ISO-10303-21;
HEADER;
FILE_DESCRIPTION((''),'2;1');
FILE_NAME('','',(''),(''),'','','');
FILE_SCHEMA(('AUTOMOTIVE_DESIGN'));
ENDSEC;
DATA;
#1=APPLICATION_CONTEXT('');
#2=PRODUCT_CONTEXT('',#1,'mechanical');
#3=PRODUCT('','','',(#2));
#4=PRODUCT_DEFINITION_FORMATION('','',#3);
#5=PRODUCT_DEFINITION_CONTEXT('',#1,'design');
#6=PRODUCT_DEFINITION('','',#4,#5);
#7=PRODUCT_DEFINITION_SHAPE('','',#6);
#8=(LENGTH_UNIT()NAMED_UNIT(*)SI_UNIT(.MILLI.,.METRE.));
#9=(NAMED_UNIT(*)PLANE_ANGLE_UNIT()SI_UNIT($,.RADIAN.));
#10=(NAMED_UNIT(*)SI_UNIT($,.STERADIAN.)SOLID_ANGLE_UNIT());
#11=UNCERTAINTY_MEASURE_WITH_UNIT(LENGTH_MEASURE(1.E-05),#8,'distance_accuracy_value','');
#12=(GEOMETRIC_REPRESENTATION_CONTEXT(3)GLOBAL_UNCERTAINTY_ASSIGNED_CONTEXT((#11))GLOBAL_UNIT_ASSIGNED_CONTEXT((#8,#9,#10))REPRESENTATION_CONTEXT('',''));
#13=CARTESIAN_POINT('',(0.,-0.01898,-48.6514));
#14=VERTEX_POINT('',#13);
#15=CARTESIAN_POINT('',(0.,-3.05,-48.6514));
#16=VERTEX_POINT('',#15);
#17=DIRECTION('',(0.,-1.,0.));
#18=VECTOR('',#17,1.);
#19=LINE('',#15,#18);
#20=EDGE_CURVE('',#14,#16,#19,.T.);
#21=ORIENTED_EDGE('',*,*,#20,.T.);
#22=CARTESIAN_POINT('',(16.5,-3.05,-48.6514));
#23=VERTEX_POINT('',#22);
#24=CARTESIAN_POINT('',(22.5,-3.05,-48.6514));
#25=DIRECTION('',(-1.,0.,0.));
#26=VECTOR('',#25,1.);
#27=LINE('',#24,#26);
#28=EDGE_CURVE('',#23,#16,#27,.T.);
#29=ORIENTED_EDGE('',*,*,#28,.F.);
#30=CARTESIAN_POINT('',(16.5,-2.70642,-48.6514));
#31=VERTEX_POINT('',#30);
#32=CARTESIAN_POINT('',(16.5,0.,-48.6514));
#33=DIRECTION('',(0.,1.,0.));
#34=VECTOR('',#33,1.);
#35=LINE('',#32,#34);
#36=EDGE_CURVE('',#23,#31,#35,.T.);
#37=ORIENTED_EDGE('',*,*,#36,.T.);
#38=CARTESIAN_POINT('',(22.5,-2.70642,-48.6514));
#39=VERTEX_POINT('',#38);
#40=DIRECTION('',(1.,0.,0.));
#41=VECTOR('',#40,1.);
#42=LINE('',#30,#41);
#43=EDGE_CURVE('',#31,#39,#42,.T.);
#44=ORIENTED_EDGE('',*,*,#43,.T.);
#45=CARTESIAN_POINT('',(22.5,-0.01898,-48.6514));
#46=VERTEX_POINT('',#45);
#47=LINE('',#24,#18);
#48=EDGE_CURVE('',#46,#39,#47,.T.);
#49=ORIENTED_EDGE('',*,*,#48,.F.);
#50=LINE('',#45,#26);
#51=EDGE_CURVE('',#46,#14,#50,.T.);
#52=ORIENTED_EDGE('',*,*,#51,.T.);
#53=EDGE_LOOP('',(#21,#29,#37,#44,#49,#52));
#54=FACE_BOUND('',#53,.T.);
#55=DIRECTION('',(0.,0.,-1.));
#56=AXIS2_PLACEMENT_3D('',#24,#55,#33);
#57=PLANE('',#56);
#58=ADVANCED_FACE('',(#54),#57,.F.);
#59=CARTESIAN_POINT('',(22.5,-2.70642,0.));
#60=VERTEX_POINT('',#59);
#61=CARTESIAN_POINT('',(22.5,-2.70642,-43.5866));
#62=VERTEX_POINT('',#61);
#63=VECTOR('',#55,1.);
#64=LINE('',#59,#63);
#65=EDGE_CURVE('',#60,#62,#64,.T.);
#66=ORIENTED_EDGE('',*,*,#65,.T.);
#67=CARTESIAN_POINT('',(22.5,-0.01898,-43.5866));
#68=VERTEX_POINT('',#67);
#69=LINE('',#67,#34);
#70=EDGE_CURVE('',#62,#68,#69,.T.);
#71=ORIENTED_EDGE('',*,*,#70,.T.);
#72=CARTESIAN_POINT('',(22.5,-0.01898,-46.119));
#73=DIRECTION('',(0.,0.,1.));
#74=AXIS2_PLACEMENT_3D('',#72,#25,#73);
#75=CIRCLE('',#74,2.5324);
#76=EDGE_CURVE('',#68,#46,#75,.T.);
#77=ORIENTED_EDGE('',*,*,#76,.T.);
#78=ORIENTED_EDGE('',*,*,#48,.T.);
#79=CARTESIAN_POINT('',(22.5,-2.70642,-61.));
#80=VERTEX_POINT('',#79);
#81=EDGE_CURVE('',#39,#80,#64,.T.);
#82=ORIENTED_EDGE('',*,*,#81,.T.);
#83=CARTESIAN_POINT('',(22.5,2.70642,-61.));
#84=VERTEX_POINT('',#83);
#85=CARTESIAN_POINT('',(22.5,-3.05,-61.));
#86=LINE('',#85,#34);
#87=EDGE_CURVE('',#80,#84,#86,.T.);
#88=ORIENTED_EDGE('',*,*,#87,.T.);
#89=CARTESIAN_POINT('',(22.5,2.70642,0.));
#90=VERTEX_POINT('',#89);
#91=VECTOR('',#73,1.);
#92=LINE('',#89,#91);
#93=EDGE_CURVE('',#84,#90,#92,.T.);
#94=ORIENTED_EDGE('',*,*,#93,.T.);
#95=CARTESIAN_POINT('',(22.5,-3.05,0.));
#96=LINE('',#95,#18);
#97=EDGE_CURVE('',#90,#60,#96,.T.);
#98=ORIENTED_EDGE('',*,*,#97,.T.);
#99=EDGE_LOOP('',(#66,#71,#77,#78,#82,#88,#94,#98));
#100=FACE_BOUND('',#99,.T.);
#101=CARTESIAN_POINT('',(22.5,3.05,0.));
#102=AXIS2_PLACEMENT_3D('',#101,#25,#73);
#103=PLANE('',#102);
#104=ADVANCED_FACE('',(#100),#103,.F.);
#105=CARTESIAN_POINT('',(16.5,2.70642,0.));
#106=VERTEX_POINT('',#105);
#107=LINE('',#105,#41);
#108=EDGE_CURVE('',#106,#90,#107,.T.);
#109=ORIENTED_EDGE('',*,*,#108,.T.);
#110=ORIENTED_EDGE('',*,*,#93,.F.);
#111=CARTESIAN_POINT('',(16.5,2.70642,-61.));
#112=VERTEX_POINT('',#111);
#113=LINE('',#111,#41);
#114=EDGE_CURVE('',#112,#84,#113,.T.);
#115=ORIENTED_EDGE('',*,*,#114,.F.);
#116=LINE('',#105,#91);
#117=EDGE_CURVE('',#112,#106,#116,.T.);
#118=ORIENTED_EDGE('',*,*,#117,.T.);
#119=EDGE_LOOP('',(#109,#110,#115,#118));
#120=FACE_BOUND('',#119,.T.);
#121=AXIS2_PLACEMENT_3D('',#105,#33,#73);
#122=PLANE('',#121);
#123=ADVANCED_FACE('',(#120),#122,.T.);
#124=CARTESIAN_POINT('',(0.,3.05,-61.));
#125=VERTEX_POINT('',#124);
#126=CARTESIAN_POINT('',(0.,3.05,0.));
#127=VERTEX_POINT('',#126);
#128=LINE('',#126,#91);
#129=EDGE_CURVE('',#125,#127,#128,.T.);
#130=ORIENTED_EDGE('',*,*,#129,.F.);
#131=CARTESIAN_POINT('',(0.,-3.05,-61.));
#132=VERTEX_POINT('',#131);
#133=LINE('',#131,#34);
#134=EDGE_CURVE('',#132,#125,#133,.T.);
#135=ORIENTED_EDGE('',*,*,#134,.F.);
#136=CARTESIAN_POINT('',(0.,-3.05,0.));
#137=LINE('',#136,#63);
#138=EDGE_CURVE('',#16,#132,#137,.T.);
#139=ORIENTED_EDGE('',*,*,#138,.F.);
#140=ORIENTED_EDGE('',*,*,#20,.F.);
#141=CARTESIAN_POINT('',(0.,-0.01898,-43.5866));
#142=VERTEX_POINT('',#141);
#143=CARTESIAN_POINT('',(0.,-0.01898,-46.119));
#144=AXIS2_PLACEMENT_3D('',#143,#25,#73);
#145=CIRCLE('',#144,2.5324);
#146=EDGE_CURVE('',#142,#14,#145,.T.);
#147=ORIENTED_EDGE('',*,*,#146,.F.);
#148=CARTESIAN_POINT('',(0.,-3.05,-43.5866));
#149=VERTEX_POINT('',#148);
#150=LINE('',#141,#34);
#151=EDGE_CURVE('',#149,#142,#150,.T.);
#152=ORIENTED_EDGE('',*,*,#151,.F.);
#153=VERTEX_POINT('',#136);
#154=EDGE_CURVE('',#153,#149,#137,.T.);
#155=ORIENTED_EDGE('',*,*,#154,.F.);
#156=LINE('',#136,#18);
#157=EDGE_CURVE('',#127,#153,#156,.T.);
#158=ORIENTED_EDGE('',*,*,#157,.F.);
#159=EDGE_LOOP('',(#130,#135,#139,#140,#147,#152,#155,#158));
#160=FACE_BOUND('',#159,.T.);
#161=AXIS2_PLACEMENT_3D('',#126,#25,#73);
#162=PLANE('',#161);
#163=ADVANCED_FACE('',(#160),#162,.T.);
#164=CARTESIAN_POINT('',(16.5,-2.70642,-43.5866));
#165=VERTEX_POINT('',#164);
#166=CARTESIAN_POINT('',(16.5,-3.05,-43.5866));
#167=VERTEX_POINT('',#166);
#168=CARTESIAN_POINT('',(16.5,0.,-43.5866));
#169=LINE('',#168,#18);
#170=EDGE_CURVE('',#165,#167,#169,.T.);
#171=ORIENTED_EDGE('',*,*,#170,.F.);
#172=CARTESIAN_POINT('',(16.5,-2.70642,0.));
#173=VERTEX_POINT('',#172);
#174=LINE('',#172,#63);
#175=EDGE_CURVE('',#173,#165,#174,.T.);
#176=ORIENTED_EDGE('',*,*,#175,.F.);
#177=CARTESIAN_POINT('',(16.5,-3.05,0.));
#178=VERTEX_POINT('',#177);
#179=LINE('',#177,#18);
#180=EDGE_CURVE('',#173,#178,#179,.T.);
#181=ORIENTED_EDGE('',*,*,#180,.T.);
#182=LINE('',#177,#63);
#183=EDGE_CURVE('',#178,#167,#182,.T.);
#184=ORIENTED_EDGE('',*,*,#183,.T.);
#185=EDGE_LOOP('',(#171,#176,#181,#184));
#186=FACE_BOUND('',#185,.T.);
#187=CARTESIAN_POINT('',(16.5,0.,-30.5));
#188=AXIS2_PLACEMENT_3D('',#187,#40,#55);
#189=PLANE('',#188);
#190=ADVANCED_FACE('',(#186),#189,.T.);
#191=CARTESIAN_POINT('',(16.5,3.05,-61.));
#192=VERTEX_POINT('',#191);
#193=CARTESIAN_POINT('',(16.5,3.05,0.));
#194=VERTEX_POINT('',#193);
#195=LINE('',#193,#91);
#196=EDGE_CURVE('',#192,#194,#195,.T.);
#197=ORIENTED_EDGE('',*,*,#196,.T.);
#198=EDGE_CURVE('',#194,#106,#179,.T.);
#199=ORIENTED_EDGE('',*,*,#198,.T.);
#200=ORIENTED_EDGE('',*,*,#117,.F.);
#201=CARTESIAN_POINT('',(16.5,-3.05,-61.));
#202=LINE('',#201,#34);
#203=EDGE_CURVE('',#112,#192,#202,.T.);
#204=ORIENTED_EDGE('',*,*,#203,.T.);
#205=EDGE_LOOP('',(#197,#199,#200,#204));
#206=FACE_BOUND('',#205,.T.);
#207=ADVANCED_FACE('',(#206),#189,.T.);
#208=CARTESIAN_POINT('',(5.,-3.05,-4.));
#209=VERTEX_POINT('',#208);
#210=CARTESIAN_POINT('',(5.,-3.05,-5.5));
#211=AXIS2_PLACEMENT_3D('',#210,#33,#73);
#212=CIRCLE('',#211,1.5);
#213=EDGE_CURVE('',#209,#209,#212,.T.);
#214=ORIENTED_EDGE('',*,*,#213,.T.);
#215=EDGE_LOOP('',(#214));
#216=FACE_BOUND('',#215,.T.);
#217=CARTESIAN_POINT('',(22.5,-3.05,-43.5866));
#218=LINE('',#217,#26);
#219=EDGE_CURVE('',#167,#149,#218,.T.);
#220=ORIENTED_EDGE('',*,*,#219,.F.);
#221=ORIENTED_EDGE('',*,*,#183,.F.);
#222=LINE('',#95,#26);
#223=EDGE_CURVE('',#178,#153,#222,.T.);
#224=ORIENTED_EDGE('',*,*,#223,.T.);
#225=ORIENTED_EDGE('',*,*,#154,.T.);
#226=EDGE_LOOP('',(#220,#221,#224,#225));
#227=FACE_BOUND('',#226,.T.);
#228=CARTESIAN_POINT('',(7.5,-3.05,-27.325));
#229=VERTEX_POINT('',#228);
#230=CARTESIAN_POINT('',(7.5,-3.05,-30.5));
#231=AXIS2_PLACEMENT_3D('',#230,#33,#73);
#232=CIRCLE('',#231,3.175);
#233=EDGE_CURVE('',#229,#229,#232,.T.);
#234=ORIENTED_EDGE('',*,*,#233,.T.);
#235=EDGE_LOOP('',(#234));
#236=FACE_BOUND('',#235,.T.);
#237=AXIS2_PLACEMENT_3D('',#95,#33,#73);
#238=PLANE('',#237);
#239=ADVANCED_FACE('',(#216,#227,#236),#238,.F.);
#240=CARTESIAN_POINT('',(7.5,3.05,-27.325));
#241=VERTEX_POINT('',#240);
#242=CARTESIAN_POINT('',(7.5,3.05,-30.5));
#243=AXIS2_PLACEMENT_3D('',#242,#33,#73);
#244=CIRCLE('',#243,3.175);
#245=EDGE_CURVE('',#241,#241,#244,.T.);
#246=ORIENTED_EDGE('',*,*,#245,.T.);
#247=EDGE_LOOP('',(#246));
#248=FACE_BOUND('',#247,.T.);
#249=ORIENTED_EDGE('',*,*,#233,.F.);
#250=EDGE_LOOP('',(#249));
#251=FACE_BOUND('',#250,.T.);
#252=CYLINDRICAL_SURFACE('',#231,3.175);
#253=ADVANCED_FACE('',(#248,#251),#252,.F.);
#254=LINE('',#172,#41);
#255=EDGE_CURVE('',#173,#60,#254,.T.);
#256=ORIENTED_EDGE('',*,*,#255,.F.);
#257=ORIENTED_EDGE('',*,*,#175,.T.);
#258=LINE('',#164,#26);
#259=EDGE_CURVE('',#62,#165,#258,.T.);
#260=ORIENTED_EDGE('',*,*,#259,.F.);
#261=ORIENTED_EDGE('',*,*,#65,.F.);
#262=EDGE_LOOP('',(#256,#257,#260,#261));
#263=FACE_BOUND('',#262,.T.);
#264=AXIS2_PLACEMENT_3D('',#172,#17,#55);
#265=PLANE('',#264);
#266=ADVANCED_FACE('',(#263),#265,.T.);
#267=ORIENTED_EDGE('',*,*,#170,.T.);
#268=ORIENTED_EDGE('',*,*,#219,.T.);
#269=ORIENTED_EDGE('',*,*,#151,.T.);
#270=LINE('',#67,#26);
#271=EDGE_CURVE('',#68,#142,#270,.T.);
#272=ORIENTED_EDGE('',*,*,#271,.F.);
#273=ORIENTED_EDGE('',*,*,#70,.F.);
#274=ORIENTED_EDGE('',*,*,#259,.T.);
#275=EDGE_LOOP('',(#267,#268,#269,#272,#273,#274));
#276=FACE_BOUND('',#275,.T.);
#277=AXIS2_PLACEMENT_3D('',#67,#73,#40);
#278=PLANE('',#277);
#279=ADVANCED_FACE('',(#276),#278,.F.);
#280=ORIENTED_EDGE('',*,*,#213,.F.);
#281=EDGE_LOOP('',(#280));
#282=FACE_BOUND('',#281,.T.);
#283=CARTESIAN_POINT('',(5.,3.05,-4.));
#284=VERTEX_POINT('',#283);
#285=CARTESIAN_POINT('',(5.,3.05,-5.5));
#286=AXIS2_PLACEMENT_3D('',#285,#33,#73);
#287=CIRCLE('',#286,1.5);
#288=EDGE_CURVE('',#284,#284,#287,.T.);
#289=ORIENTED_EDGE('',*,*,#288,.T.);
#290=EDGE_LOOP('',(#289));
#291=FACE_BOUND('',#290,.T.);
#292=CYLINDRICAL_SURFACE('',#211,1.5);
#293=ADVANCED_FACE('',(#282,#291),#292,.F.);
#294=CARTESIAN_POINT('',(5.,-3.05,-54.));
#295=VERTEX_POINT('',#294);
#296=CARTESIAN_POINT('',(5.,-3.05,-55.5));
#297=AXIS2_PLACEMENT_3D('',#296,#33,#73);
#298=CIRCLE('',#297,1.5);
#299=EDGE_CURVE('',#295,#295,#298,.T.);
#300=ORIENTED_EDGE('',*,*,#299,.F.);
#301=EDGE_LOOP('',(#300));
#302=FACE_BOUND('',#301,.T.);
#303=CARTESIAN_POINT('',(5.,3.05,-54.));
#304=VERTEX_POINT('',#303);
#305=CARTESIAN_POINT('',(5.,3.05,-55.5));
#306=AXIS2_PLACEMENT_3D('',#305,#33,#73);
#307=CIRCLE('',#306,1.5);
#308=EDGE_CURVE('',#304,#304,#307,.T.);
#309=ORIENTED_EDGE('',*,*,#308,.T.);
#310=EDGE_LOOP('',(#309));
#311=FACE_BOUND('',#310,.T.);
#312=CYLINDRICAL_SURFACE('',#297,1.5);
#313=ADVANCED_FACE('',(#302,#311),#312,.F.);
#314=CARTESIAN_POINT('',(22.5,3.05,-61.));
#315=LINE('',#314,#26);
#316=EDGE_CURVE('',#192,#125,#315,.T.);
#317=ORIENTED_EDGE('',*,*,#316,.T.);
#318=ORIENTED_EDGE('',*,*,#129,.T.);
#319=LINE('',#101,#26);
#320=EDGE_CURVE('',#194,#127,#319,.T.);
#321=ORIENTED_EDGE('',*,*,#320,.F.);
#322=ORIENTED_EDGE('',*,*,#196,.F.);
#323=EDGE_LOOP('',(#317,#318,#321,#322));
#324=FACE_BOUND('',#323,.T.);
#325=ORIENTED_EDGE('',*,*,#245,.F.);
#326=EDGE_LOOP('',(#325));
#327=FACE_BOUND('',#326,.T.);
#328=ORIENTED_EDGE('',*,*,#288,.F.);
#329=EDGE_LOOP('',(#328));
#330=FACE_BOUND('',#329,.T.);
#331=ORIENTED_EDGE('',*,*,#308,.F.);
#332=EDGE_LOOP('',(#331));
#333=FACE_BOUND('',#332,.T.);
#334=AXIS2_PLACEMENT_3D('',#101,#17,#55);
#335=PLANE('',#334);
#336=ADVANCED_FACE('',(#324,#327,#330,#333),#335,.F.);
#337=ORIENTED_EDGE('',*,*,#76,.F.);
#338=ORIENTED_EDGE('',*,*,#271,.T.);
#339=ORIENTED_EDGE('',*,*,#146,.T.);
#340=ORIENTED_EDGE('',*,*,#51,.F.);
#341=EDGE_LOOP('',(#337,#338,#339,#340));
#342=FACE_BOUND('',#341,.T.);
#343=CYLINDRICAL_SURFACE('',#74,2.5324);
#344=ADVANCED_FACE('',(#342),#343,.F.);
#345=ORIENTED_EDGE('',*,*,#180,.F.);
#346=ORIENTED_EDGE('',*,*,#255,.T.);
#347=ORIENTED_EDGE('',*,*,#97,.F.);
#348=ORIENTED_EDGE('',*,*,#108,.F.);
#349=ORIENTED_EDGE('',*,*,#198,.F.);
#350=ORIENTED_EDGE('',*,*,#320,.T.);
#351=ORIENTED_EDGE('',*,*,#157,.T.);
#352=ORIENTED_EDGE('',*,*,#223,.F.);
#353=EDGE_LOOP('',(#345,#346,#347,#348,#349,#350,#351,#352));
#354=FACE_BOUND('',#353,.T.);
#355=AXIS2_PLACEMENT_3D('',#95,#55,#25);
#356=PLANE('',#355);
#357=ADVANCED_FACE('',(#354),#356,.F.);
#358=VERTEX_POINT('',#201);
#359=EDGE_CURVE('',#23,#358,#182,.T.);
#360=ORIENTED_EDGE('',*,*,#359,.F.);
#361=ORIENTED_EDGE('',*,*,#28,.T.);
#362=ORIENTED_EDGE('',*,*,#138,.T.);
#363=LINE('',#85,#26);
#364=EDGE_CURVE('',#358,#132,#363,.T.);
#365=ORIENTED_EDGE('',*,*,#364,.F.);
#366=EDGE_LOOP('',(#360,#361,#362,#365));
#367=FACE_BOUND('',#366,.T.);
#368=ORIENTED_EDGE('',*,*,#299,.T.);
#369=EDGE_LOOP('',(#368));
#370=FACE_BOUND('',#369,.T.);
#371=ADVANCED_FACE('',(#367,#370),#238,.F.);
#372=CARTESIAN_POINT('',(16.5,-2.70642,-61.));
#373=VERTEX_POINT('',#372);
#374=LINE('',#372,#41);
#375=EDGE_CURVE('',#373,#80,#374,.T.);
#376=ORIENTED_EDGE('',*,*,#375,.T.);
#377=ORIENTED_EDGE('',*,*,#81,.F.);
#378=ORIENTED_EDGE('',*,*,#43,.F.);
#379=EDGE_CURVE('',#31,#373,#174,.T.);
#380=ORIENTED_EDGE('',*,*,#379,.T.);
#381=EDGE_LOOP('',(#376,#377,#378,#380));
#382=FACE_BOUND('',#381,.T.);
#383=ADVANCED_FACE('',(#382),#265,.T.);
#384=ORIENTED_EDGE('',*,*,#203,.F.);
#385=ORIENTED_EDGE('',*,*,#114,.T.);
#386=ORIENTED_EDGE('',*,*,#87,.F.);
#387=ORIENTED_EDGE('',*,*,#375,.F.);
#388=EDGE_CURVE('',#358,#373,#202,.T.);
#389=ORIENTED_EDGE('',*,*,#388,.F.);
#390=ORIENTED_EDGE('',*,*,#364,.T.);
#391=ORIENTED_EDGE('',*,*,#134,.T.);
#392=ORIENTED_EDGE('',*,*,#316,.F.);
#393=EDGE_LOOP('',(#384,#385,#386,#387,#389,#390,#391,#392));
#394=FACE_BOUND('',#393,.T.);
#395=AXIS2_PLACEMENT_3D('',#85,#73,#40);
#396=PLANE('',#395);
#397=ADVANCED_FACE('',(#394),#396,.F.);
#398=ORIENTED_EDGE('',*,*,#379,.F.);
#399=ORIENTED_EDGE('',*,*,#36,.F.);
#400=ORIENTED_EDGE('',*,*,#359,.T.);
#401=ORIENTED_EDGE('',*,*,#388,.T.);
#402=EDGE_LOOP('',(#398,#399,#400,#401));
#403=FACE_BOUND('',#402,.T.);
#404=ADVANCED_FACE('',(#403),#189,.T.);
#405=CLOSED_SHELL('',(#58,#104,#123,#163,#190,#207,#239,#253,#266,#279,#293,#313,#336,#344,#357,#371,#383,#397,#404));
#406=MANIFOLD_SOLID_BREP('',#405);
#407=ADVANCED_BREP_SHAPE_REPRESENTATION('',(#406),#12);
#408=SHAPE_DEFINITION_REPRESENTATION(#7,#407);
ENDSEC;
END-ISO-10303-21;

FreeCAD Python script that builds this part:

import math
import FreeCAD as App
import Part
import Sketcher
from FreeCAD import Vector
Q = App.Units.Quantity


def add_polygon(sketch, points):
    """Adds a closed chain of lines whose ends are joined by coincident constraints."""
    first, n = sketch.GeometryCount, len(points)
    for a, b in zip(points, points[1:] + points[:1]):
        sketch.addGeometry(Part.LineSegment(App.Vector(*a, 0), App.Vector(*b, 0)), False)
    for i in range(n):
        sketch.addConstraint(Sketcher.Constraint("Coincident", first + i, 2, first + (i + 1) % n, 1))

doc = App.newDocument("Part")
body = doc.addObject("PartDesign::Body", "Body")

sketch1 = doc.addObject("Sketcher::SketchObject", "Sketch")
body.addObject(sketch1)
sketch1.AttachmentSupport = (doc.YZ_Plane, [""])
sketch1.MapMode = "FlatFace"
add_polygon(sketch1, [(3, 0), (-3, 0), (-3, -61), (3, -61)])
sketch1.addConstraint(Sketcher.Constraint("Horizontal", 0))
sketch1.addConstraint(Sketcher.Constraint("Vertical", 1))
sketch1.addConstraint(Sketcher.Constraint("Horizontal", 2))
sketch1.addConstraint(Sketcher.Constraint("Vertical", 3))
sketch1.addConstraint(Sketcher.Constraint("Symmetric", 0, 2, 3, 2, -1, 1))
sketch1.addConstraint(Sketcher.Constraint("DistanceY", 1, 2, 1, 1, Q("61 mm")))
sketch1.addConstraint(Sketcher.Constraint("DistanceX", 0, 2, 0, 1, Q("6.1 mm")))
pad1 = doc.addObject("PartDesign::Pad", "Pad")
body.addObject(pad1)
pad1.Profile = sketch1
pad1.Length = 22.5

sketch2 = doc.addObject("Sketcher::SketchObject", "Sketch001")
body.addObject(sketch2)
sketch2.AttachmentSupport = (doc.YZ_Plane, [""])
sketch2.MapMode = "FlatFace"
sketch2.AttachmentOffset = App.Placement(Vector(0, 0, 22.5), App.Rotation())
add_polygon(sketch2, [(11, 8), (-11, 8), (-11, -69), (11, -69)])
add_polygon(sketch2, [(-3, -61), (-3, 0), (3, 0), (3, -61)])
sketch2.addConstraint(Sketcher.Constraint("Horizontal", 0))
sketch2.addConstraint(Sketcher.Constraint("Vertical", 1))
sketch2.addConstraint(Sketcher.Constraint("Horizontal", 2))
sketch2.addConstraint(Sketcher.Constraint("Vertical", 3))
sketch2.addConstraint(Sketcher.Constraint("Vertical", 4))
sketch2.addConstraint(Sketcher.Constraint("Horizontal", 5))
sketch2.addConstraint(Sketcher.Constraint("Vertical", 6))
sketch2.addConstraint(Sketcher.Constraint("Horizontal", 7))
sketch2.addConstraint(Sketcher.Constraint("Symmetric", 4, 2, 5, 2, -1, 1))
sketch2.addConstraint(Sketcher.Constraint("DistanceY", 4, 1, 4, 2, Q("61 mm")))
sketch2.addConstraint(Sketcher.Constraint("DistanceX", 0, 2, 0, 1, Q("21.16 mm")))
sketch2.addConstraint(Sketcher.Constraint("DistanceY", 1, 2, 1, 1, Q("76.06 mm")))
sketch2.addConstraint(Sketcher.Constraint("DistanceX", 0, 2, -1, 1, Q("10.58 mm")))
sketch2.addConstraint(Sketcher.Constraint("DistanceY", -1, 1, 0, 2, Q("7.53 mm")))
sketch2.addConstraint(Sketcher.Constraint("DistanceX", 5, 1, 5, 2, Q("5.41284 mm")))
pocket1 = doc.addObject("PartDesign::Pocket", "Pocket")
body.addObject(pocket1)
pocket1.Profile = sketch2
pocket1.Length = 6

sketch3 = doc.addObject("Sketcher::SketchObject", "Sketch002")
body.addObject(sketch3)
sketch3.AttachmentSupport = (doc.YZ_Plane, [""])
sketch3.MapMode = "FlatFace"
sketch3.addGeometry(Part.LineSegment(Vector(-3, -43.6, 0), Vector(0, -43.6, 0)), False)
sketch3.addGeometry(Part.ArcOfCircle(Part.Circle(Vector(0, -46.1, 0), Vector(0, 0, 1), 2.5), math.radians(-90), math.radians(90)), False)
sketch3.addGeometry(Part.LineSegment(Vector(0, -48.7, 0), Vector(-3, -48.7, 0)), False)
sketch3.addGeometry(Part.LineSegment(Vector(-3, -48.7, 0), Vector(-3, -43.6, 0)), False)
sketch3.addConstraint(Sketcher.Constraint("Tangent", 0, 2, 1, 2))
sketch3.addConstraint(Sketcher.Constraint("Tangent", 1, 1, 2, 1))
sketch3.addConstraint(Sketcher.Constraint("Coincident", 2, 2, 3, 1))
sketch3.addConstraint(Sketcher.Constraint("Coincident", 3, 2, 0, 1))
sketch3.addConstraint(Sketcher.Constraint("Horizontal", 0))
sketch3.addConstraint(Sketcher.Constraint("Horizontal", 2))
sketch3.addConstraint(Sketcher.Constraint("Vertical", 3))
sketch3.addConstraint(Sketcher.Constraint("Radius", 1, Q("2.5324 mm")))
sketch3.addConstraint(Sketcher.Constraint("DistanceX", 2, 2, -1, 1, Q("3.05 mm")))
sketch3.addConstraint(Sketcher.Constraint("DistanceY", 1, 3, -1, 1, Q("46.119 mm")))
sketch3.addConstraint(Sketcher.Constraint("DistanceX", 0, 1, 0, 2, Q("3.03102 mm")))
pocket2 = doc.addObject("PartDesign::Pocket", "Pocket001")
body.addObject(pocket2)
pocket2.Profile = sketch3
pocket2.Type = "ThroughAll"
pocket2.Reversed = True

sketch4 = doc.addObject("Sketcher::SketchObject", "Sketch003")
body.addObject(sketch4)
sketch4.AttachmentSupport = (doc.XZ_Plane, [""])
sketch4.MapMode = "FlatFace"
sketch4.AttachmentOffset = App.Placement(Vector(0, 0, -3.05), App.Rotation())
sketch4.addGeometry(Part.Circle(Vector(7.5, -30.5, 0), Vector(0, 0, 1), 3.2), False)
sketch4.addConstraint(Sketcher.Constraint("Diameter", 0, Q("6.35 mm")))
sketch4.addConstraint(Sketcher.Constraint("DistanceX", -1, 1, 0, 3, Q("7.5 mm")))
sketch4.addConstraint(Sketcher.Constraint("DistanceY", 0, 3, -1, 1, Q("30.5 mm")))
pocket3 = doc.addObject("PartDesign::Pocket", "Pocket002")
body.addObject(pocket3)
pocket3.Profile = sketch4
pocket3.Type = "ThroughAll"
pocket3.Reversed = True

sketch5 = doc.addObject("Sketcher::SketchObject", "Sketch004")
body.addObject(sketch5)
sketch5.AttachmentSupport = (doc.XZ_Plane, [""])
sketch5.MapMode = "FlatFace"
sketch5.AttachmentOffset = App.Placement(Vector(0, 0, -3.05), App.Rotation())
sketch5.addGeometry(Part.Circle(Vector(5, -55.5, 0), Vector(0, 0, 1), 1.5), False)
sketch5.addGeometry(Part.Circle(Vector(5, -5.5, 0), Vector(0, 0, 1), 1.5), False)
sketch5.addConstraint(Sketcher.Constraint("Equal", 0, 1))
sketch5.addConstraint(Sketcher.Constraint("Vertical", 0, 3, 1, 3))
sketch5.addConstraint(Sketcher.Constraint("Diameter", 0, Q("3 mm")))
sketch5.addConstraint(Sketcher.Constraint("DistanceX", -1, 1, 0, 3, Q("5 mm")))
sketch5.addConstraint(Sketcher.Constraint("DistanceY", 0, 3, 1, 3, Q("50 mm")))
sketch5.addConstraint(Sketcher.Constraint("DistanceY", 0, 3, -1, 1, Q("55.5 mm")))
pocket4 = doc.addObject("PartDesign::Pocket", "Pocket003")
body.addObject(pocket4)
pocket4.Profile = sketch5
pocket4.Type = "ThroughAll"
pocket4.Reversed = True

doc.recompute()
